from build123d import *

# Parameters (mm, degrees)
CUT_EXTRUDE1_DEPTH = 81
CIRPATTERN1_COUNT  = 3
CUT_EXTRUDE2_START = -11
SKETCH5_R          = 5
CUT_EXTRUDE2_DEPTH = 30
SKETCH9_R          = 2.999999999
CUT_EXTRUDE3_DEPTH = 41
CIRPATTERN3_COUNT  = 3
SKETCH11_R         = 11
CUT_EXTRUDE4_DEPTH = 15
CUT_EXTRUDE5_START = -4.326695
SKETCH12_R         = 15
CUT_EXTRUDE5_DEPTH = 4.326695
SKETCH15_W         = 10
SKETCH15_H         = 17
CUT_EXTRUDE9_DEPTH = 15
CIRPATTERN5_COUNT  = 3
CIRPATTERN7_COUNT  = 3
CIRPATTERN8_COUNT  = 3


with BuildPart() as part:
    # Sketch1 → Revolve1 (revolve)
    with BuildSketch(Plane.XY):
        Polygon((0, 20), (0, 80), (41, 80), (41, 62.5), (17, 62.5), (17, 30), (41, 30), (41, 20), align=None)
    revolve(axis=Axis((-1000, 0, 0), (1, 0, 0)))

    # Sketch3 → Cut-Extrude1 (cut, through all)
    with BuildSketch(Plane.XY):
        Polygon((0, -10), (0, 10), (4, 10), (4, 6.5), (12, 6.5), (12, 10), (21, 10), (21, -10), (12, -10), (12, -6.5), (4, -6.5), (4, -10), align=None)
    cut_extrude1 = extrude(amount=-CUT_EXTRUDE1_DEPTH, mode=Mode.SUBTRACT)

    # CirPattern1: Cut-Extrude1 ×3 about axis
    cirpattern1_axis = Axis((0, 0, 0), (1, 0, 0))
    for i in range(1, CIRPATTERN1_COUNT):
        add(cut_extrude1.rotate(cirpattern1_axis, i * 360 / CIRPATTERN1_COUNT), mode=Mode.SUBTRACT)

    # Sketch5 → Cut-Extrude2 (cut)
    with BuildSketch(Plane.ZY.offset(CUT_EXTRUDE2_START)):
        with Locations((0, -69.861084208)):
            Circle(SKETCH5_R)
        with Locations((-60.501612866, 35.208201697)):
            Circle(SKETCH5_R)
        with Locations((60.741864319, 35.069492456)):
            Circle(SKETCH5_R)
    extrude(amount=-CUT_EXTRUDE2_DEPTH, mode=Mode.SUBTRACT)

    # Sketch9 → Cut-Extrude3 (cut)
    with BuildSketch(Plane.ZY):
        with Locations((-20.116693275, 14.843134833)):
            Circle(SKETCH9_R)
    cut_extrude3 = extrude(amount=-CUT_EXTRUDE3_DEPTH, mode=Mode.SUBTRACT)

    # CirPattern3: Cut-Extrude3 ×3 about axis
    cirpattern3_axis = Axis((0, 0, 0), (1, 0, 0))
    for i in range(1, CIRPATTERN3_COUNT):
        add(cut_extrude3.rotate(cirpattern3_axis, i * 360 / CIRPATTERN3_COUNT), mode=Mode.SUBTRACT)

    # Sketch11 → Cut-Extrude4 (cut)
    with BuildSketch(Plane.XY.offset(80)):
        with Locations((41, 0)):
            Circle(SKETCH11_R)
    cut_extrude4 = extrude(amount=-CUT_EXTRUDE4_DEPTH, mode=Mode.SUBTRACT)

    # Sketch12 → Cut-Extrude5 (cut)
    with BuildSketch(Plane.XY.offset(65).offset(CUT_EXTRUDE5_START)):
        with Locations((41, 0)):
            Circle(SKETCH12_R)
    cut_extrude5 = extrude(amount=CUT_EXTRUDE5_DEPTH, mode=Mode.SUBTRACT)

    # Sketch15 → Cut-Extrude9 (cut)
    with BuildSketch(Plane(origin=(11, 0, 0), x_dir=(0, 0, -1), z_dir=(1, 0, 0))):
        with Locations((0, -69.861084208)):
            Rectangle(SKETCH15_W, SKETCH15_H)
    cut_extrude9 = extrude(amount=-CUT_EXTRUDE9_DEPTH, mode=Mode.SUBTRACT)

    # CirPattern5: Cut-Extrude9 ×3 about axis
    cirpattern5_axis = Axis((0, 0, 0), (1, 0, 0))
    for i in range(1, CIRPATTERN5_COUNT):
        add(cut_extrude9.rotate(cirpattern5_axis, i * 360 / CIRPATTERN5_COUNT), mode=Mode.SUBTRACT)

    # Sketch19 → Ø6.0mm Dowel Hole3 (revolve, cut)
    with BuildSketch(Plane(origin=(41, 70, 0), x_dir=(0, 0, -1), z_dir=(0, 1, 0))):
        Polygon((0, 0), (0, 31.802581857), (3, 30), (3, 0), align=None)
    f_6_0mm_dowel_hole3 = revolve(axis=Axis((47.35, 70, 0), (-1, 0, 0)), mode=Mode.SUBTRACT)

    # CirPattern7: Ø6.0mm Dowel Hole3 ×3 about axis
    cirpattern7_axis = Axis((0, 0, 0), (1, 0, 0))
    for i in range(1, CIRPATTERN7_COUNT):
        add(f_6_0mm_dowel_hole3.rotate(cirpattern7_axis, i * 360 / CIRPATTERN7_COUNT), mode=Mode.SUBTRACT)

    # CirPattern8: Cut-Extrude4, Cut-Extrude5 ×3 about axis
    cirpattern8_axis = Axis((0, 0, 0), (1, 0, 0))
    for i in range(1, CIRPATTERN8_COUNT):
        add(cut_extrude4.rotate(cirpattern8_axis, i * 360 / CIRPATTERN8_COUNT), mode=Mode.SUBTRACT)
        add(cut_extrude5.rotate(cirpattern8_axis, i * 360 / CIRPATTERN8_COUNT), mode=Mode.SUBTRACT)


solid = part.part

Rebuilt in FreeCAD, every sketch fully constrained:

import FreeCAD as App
import Part
import Sketcher

V = App.Vector
Q = App.Units.Quantity

doc = App.newDocument("Part")
body = doc.addObject("PartDesign::Body", "Body")

sketch1 = body.newObject("Sketcher::SketchObject", "Sketch")
sketch1.AttachmentSupport = (doc.getObject("XY_Plane"), [""])
sketch1.MapMode = "FlatFace"
sketch1.addGeometry([
    Part.LineSegment(V(0, 80, 0), V(0, 20, 0)),
    Part.LineSegment(V(0, 20, 0), V(41, 20, 0)),
    Part.LineSegment(V(41, 20, 0), V(41, 30, 0)),
    Part.LineSegment(V(41, 30, 0), V(17, 30, 0)),
    Part.LineSegment(V(17, 30, 0), V(17, 62, 0)),
    Part.LineSegment(V(17, 62, 0), V(41, 62, 0)),
    Part.LineSegment(V(41, 62, 0), V(41, 80, 0)),
    Part.LineSegment(V(41, 80, 0), V(0, 80, 0)),
], False)
sketch1.addConstraint([
    Sketcher.Constraint("Coincident", 0, 2, 1, 1),
    Sketcher.Constraint("Coincident", 1, 2, 2, 1),
    Sketcher.Constraint("Coincident", 2, 2, 3, 1),
    Sketcher.Constraint("Coincident", 3, 2, 4, 1),
    Sketcher.Constraint("Coincident", 4, 2, 5, 1),
    Sketcher.Constraint("Coincident", 5, 2, 6, 1),
    Sketcher.Constraint("Coincident", 6, 2, 7, 1),
    Sketcher.Constraint("Coincident", 7, 2, 0, 1),
    Sketcher.Constraint("Vertical", 0),
    Sketcher.Constraint("Horizontal", 1),
    Sketcher.Constraint("Vertical", 2),
    Sketcher.Constraint("Horizontal", 3),
    Sketcher.Constraint("Vertical", 4),
    Sketcher.Constraint("Horizontal", 5),
    Sketcher.Constraint("Vertical", 6),
    Sketcher.Constraint("Horizontal", 7),
    Sketcher.Constraint("PointOnObject", 0, 2, -2),
    Sketcher.Constraint("Vertical", 2, 2, 5, 2),
    Sketcher.Constraint("DistanceX", 1, 1, 1, 2, 41.0),
    Sketcher.Constraint("DistanceX", 3, 2, 3, 1, 24.0),
    Sketcher.Constraint("DistanceY", 0, 2, 0, 1, 60.0),
    Sketcher.Constraint("DistanceY", 2, 1, 2, 2, 10.0),
    Sketcher.Constraint("DistanceY", 4, 1, 4, 2, 32.5),
    Sketcher.Constraint("DistanceY", -1, 1, 0, 2, 20.0),
])
revolution = body.newObject("PartDesign::Revolution", "Revolution")
revolution.Profile = sketch1
revolution.ReferenceAxis = (sketch1, ["H_Axis"])
revolution.Angle = 360

sketch2 = body.newObject("Sketcher::SketchObject", "Sketch001")
sketch2.AttachmentSupport = (doc.getObject("XY_Plane"), [""])
sketch2.MapMode = "FlatFace"
sketch2.addGeometry([
    Part.LineSegment(V(0, 10, 0), V(0, -10, 0)),
    Part.LineSegment(V(0, -10, 0), V(4, -10, 0)),
    Part.LineSegment(V(4, -10, 0), V(4, -6.5, 0)),
    Part.LineSegment(V(4, -6.5, 0), V(12, -6.5, 0)),
    Part.LineSegment(V(12, -6.5, 0), V(12, -10, 0)),
    Part.LineSegment(V(12, -10, 0), V(21, -10, 0)),
    Part.LineSegment(V(21, -10, 0), V(21, 10, 0)),
    Part.LineSegment(V(21, 10, 0), V(12, 10, 0)),
    Part.LineSegment(V(12, 10, 0), V(12, 6.5, 0)),
    Part.LineSegment(V(12, 6.5, 0), V(4, 6.5, 0)),
    Part.LineSegment(V(4, 6.5, 0), V(4, 10, 0)),
    Part.LineSegment(V(4, 10, 0), V(0, 10, 0)),
], False)
sketch2.addConstraint([
    Sketcher.Constraint("Coincident", 0, 2, 1, 1),
    Sketcher.Constraint("Coincident", 1, 2, 2, 1),
    Sketcher.Constraint("Coincident", 2, 2, 3, 1),
    Sketcher.Constraint("Coincident", 3, 2, 4, 1),
    Sketcher.Constraint("Coincident", 4, 2, 5, 1),
    Sketcher.Constraint("Coincident", 5, 2, 6, 1),
    Sketcher.Constraint("Coincident", 6, 2, 7, 1),
    Sketcher.Constraint("Coincident", 7, 2, 8, 1),
    Sketcher.Constraint("Coincident", 8, 2, 9, 1),
    Sketcher.Constraint("Coincident", 9, 2, 10, 1),
    Sketcher.Constraint("Coincident", 10, 2, 11, 1),
    Sketcher.Constraint("Coincident", 11, 2, 0, 1),
    Sketcher.Constraint("Vertical", 0),
    Sketcher.Constraint("Horizontal", 1),
    Sketcher.Constraint("Vertical", 2),
    Sketcher.Constraint("Horizontal", 3),
    Sketcher.Constraint("Vertical", 4),
    Sketcher.Constraint("Horizontal", 5),
    Sketcher.Constraint("Vertical", 6),
    Sketcher.Constraint("Horizontal", 7),
    Sketcher.Constraint("Vertical", 8),
    Sketcher.Constraint("Horizontal", 9),
    Sketcher.Constraint("Vertical", 10),
    Sketcher.Constraint("Horizontal", 11),
    Sketcher.Constraint("Symmetric", 0, 2, 11, 2, -1, 1),
    Sketcher.Constraint("Symmetric", 4, 2, 7, 2, -1),
    Sketcher.Constraint("Symmetric", 2, 2, 9, 2, -1),
    Sketcher.Constraint("Horizontal", 1, 2, 4, 2),
    Sketcher.Constraint("DistanceX", 1, 1, 1, 2, 4.0),
    Sketcher.Constraint("DistanceX", 3, 1, 3, 2, 8.0),
    Sketcher.Constraint("DistanceX", 5, 1, 5, 2, 9.0),
    Sketcher.Constraint("DistanceY", 0, 2, 0, 1, 20.0),
    Sketcher.Constraint("DistanceY", 2, 1, 2, 2, 3.5),
])
pocket1 = body.newObject("PartDesign::Pocket", "Pocket")
pocket1.Profile = sketch2
pocket1.Type = "ThroughAll"
doc.recompute()

polarpattern = body.newObject("PartDesign::PolarPattern", "PolarPattern")
polarpattern.Originals = [pocket1]
polarpattern.Axis = (doc.getObject("X_Axis"), [""])
polarpattern.Angle = 360
polarpattern.Occurrences = 3
body.Tip = polarpattern

sketch3 = body.newObject("Sketcher::SketchObject", "Sketch002")
sketch3.AttachmentSupport = (doc.getObject("YZ_Plane"), [""])
sketch3.MapMode = "FlatFace"
sketch3.AttachmentOffset = App.Placement(V(0, 0, 11), App.Rotation())
sketch3.addGeometry([
    Part.Circle(V(-70, 0, 0), V(0, 0, 1), 5),
    Part.Circle(V(35, -61, 0), V(0, 0, 1), 5),
    Part.Circle(V(35, 61, 0), V(0, 0, 1), 5),
], False)
sketch3.addConstraint([
    Sketcher.Constraint("Equal", 0, 1),
    Sketcher.Constraint("Equal", 1, 2),
    Sketcher.Constraint("PointOnObject", 0, 3, -1),
    Sketcher.Constraint("Diameter", 0, 10.0),
    Sketcher.Constraint("DistanceX", -1, 1, 1, 3, 35.208202),
    Sketcher.Constraint("DistanceX", 2, 3, 1, 3, 0.138709),
    Sketcher.Constraint("DistanceX", 0, 3, -1, 1, 69.861084),
    Sketcher.Constraint("DistanceY", 1, 3, -1, 1, 60.501613),
    Sketcher.Constraint("DistanceY", -1, 1, 2, 3, 60.741864),
])
pocket2 = body.newObject("PartDesign::Pocket", "Pocket001")
pocket2.Profile = sketch3
pocket2.Length = 30
pocket2.Reversed = True

sketch4 = body.newObject("Sketcher::SketchObject", "Sketch003")
sketch4.AttachmentSupport = (doc.getObject("YZ_Plane"), [""])
sketch4.MapMode = "FlatFace"
sketch4.addGeometry(Part.Circle(V(14.8, -20.1, 0), V(0, 0, 1), 3), False)
sketch4.addConstraint([
    Sketcher.Constraint("Diameter", 0, 6.0),
    Sketcher.Constraint("DistanceX", -1, 1, 0, 3, 14.843135),
    Sketcher.Constraint("DistanceY", 0, 3, -1, 1, 20.116693),
])
pocket3 = body.newObject("PartDesign::Pocket", "Pocket002")
pocket3.Profile = sketch4
pocket3.Length = 41
pocket3.Reversed = True
doc.recompute()

polarpattern2 = body.newObject("PartDesign::PolarPattern", "PolarPattern001")
polarpattern2.Originals = [pocket3]
polarpattern2.Axis = (doc.getObject("X_Axis"), [""])
polarpattern2.Angle = 360
polarpattern2.Occurrences = 3
body.Tip = polarpattern2

sketch5 = body.newObject("Sketcher::SketchObject", "Sketch004")
sketch5.AttachmentSupport = (doc.getObject("XY_Plane"), [""])
sketch5.MapMode = "FlatFace"
sketch5.AttachmentOffset = App.Placement(V(0, 0, 80), App.Rotation())
sketch5.addGeometry(Part.Circle(V(41, 0, 0), V(0, 0, 1), 11), False)
sketch5.addConstraint([
    Sketcher.Constraint("PointOnObject", 0, 3, -1),
    Sketcher.Constraint("Diameter", 0, 22.0),
    Sketcher.Constraint("DistanceX", -1, 1, 0, 3, 41.0),
])
pocket4 = body.newObject("PartDesign::Pocket", "Pocket003")
pocket4.Profile = sketch5
pocket4.Length = 15

sketch6 = body.newObject("Sketcher::SketchObject", "Sketch005")
sketch6.AttachmentSupport = (doc.getObject("XY_Plane"), [""])
sketch6.MapMode = "FlatFace"
sketch6.AttachmentOffset = App.Placement(V(0, 0, 60.673305), App.Rotation())
sketch6.addGeometry(Part.Circle(V(41, 0, 0), V(0, 0, 1), 15), False)
sketch6.addConstraint([
    Sketcher.Constraint("PointOnObject", 0, 3, -1),
    Sketcher.Constraint("Diameter", 0, 30.0),
    Sketcher.Constraint("DistanceX", -1, 1, 0, 3, 41.0),
])
pocket5 = body.newObject("PartDesign::Pocket", "Pocket004")
pocket5.Profile = sketch6
pocket5.Length = 4.326695
pocket5.Reversed = True

sketch7 = body.newObject("Sketcher::SketchObject", "Sketch006")
sketch7.AttachmentSupport = (doc.getObject("YZ_Plane"), [""])
sketch7.MapMode = "FlatFace"
sketch7.AttachmentOffset = App.Placement(V(0, 0, 11), App.Rotation())
sketch7.addGeometry([
    Part.LineSegment(V(-61, 5, 0), V(-78, 5, 0)),
    Part.LineSegment(V(-78, 5, 0), V(-78, -5, 0)),
    Part.LineSegment(V(-78, -5, 0), V(-61, -5, 0)),
    Part.LineSegment(V(-61, -5, 0), V(-61, 5, 0)),
], False)
sketch7.addConstraint([
    Sketcher.Constraint("Coincident", 0, 2, 1, 1),
    Sketcher.Constraint("Coincident", 1, 2, 2, 1),
    Sketcher.Constraint("Coincident", 2, 2, 3, 1),
    Sketcher.Constraint("Coincident", 3, 2, 0, 1),
    Sketcher.Constraint("Horizontal", 0),
    Sketcher.Constraint("Vertical", 1),
    Sketcher.Constraint("Horizontal", 2),
    Sketcher.Constraint("Vertical", 3),
    Sketcher.Constraint("DistanceX", 0, 2, 0, 1, 17.0),
    Sketcher.Constraint("DistanceY", 1, 2, 1, 1, 10.0),
    Sketcher.Constraint("DistanceY", -1, 1, 0, 2, 5.0),
    Sketcher.Constraint("DistanceX", 0, 2, -1, 1, 78.361084),
])
pocket6 = body.newObject("PartDesign::Pocket", "Pocket005")
pocket6.Profile = sketch7
pocket6.Length = 15
doc.recompute()

polarpattern3 = body.newObject("PartDesign::PolarPattern", "PolarPattern002")
polarpattern3.Originals = [pocket6]
polarpattern3.Axis = (doc.getObject("X_Axis"), [""])
polarpattern3.Angle = 360
polarpattern3.Occurrences = 3
body.Tip = polarpattern3

sketch8 = body.newObject("Sketcher::SketchObject", "Sketch007")
sketch8.AttachmentSupport = (doc.getObject("XZ_Plane"), [""])
sketch8.MapMode = "FlatFace"
sketch8.AttachmentOffset = App.Placement(V(0, 0, -70), App.Rotation())
sketch8.addGeometry([
    Part.LineSegment(V(9.2, 0, 0), V(41, 0, 0)),
    Part.LineSegment(V(41, 0, 0), V(41, -3, 0)),
    Part.LineSegment(V(41, -3, 0), V(11, -3, 0)),
    Part.LineSegment(V(11, -3, 0), V(9.2, 0, 0)),
], False)
sketch8.addConstraint([
    Sketcher.Constraint("Coincident", 0, 2, 1, 1),
    Sketcher.Constraint("Coincident", 1, 2, 2, 1),
    Sketcher.Constraint("Coincident", 2, 2, 3, 1),
    Sketcher.Constraint("Coincident", 3, 2, 0, 1),
    Sketcher.Constraint("Horizontal", 0),
    Sketcher.Constraint("Vertical", 1),
    Sketcher.Constraint("Horizontal", 2),
    Sketcher.Constraint("PointOnObject", 0, 2, -1),
    Sketcher.Constraint("DistanceX", 2, 2, 2, 1, 30.0),
    Sketcher.Constraint("DistanceY", 1, 2, 1, 1, 3.0),
    Sketcher.Constraint("Angle", 3, Q("121 deg")),
    Sketcher.Constraint("DistanceX", -1, 1, 0, 2, 41.0),
])
groove = body.newObject("PartDesign::Groove", "Groove")
groove.Profile = sketch8
groove.ReferenceAxis = (sketch8, ["H_Axis"])
groove.Angle = 360
doc.recompute()

polarpattern4 = body.newObject("PartDesign::PolarPattern", "PolarPattern003")
polarpattern4.Originals = [groove]
polarpattern4.Axis = (doc.getObject("X_Axis"), [""])
polarpattern4.Angle = 360
polarpattern4.Occurrences = 3
body.Tip = polarpattern4
doc.recompute()

polarpattern5 = body.newObject("PartDesign::PolarPattern", "PolarPattern004")
polarpattern5.Originals = [pocket4, pocket5]
polarpattern5.Axis = (doc.getObject("X_Axis"), [""])
polarpattern5.Angle = 360
polarpattern5.Occurrences = 3
body.Tip = polarpattern5

doc.recompute()
